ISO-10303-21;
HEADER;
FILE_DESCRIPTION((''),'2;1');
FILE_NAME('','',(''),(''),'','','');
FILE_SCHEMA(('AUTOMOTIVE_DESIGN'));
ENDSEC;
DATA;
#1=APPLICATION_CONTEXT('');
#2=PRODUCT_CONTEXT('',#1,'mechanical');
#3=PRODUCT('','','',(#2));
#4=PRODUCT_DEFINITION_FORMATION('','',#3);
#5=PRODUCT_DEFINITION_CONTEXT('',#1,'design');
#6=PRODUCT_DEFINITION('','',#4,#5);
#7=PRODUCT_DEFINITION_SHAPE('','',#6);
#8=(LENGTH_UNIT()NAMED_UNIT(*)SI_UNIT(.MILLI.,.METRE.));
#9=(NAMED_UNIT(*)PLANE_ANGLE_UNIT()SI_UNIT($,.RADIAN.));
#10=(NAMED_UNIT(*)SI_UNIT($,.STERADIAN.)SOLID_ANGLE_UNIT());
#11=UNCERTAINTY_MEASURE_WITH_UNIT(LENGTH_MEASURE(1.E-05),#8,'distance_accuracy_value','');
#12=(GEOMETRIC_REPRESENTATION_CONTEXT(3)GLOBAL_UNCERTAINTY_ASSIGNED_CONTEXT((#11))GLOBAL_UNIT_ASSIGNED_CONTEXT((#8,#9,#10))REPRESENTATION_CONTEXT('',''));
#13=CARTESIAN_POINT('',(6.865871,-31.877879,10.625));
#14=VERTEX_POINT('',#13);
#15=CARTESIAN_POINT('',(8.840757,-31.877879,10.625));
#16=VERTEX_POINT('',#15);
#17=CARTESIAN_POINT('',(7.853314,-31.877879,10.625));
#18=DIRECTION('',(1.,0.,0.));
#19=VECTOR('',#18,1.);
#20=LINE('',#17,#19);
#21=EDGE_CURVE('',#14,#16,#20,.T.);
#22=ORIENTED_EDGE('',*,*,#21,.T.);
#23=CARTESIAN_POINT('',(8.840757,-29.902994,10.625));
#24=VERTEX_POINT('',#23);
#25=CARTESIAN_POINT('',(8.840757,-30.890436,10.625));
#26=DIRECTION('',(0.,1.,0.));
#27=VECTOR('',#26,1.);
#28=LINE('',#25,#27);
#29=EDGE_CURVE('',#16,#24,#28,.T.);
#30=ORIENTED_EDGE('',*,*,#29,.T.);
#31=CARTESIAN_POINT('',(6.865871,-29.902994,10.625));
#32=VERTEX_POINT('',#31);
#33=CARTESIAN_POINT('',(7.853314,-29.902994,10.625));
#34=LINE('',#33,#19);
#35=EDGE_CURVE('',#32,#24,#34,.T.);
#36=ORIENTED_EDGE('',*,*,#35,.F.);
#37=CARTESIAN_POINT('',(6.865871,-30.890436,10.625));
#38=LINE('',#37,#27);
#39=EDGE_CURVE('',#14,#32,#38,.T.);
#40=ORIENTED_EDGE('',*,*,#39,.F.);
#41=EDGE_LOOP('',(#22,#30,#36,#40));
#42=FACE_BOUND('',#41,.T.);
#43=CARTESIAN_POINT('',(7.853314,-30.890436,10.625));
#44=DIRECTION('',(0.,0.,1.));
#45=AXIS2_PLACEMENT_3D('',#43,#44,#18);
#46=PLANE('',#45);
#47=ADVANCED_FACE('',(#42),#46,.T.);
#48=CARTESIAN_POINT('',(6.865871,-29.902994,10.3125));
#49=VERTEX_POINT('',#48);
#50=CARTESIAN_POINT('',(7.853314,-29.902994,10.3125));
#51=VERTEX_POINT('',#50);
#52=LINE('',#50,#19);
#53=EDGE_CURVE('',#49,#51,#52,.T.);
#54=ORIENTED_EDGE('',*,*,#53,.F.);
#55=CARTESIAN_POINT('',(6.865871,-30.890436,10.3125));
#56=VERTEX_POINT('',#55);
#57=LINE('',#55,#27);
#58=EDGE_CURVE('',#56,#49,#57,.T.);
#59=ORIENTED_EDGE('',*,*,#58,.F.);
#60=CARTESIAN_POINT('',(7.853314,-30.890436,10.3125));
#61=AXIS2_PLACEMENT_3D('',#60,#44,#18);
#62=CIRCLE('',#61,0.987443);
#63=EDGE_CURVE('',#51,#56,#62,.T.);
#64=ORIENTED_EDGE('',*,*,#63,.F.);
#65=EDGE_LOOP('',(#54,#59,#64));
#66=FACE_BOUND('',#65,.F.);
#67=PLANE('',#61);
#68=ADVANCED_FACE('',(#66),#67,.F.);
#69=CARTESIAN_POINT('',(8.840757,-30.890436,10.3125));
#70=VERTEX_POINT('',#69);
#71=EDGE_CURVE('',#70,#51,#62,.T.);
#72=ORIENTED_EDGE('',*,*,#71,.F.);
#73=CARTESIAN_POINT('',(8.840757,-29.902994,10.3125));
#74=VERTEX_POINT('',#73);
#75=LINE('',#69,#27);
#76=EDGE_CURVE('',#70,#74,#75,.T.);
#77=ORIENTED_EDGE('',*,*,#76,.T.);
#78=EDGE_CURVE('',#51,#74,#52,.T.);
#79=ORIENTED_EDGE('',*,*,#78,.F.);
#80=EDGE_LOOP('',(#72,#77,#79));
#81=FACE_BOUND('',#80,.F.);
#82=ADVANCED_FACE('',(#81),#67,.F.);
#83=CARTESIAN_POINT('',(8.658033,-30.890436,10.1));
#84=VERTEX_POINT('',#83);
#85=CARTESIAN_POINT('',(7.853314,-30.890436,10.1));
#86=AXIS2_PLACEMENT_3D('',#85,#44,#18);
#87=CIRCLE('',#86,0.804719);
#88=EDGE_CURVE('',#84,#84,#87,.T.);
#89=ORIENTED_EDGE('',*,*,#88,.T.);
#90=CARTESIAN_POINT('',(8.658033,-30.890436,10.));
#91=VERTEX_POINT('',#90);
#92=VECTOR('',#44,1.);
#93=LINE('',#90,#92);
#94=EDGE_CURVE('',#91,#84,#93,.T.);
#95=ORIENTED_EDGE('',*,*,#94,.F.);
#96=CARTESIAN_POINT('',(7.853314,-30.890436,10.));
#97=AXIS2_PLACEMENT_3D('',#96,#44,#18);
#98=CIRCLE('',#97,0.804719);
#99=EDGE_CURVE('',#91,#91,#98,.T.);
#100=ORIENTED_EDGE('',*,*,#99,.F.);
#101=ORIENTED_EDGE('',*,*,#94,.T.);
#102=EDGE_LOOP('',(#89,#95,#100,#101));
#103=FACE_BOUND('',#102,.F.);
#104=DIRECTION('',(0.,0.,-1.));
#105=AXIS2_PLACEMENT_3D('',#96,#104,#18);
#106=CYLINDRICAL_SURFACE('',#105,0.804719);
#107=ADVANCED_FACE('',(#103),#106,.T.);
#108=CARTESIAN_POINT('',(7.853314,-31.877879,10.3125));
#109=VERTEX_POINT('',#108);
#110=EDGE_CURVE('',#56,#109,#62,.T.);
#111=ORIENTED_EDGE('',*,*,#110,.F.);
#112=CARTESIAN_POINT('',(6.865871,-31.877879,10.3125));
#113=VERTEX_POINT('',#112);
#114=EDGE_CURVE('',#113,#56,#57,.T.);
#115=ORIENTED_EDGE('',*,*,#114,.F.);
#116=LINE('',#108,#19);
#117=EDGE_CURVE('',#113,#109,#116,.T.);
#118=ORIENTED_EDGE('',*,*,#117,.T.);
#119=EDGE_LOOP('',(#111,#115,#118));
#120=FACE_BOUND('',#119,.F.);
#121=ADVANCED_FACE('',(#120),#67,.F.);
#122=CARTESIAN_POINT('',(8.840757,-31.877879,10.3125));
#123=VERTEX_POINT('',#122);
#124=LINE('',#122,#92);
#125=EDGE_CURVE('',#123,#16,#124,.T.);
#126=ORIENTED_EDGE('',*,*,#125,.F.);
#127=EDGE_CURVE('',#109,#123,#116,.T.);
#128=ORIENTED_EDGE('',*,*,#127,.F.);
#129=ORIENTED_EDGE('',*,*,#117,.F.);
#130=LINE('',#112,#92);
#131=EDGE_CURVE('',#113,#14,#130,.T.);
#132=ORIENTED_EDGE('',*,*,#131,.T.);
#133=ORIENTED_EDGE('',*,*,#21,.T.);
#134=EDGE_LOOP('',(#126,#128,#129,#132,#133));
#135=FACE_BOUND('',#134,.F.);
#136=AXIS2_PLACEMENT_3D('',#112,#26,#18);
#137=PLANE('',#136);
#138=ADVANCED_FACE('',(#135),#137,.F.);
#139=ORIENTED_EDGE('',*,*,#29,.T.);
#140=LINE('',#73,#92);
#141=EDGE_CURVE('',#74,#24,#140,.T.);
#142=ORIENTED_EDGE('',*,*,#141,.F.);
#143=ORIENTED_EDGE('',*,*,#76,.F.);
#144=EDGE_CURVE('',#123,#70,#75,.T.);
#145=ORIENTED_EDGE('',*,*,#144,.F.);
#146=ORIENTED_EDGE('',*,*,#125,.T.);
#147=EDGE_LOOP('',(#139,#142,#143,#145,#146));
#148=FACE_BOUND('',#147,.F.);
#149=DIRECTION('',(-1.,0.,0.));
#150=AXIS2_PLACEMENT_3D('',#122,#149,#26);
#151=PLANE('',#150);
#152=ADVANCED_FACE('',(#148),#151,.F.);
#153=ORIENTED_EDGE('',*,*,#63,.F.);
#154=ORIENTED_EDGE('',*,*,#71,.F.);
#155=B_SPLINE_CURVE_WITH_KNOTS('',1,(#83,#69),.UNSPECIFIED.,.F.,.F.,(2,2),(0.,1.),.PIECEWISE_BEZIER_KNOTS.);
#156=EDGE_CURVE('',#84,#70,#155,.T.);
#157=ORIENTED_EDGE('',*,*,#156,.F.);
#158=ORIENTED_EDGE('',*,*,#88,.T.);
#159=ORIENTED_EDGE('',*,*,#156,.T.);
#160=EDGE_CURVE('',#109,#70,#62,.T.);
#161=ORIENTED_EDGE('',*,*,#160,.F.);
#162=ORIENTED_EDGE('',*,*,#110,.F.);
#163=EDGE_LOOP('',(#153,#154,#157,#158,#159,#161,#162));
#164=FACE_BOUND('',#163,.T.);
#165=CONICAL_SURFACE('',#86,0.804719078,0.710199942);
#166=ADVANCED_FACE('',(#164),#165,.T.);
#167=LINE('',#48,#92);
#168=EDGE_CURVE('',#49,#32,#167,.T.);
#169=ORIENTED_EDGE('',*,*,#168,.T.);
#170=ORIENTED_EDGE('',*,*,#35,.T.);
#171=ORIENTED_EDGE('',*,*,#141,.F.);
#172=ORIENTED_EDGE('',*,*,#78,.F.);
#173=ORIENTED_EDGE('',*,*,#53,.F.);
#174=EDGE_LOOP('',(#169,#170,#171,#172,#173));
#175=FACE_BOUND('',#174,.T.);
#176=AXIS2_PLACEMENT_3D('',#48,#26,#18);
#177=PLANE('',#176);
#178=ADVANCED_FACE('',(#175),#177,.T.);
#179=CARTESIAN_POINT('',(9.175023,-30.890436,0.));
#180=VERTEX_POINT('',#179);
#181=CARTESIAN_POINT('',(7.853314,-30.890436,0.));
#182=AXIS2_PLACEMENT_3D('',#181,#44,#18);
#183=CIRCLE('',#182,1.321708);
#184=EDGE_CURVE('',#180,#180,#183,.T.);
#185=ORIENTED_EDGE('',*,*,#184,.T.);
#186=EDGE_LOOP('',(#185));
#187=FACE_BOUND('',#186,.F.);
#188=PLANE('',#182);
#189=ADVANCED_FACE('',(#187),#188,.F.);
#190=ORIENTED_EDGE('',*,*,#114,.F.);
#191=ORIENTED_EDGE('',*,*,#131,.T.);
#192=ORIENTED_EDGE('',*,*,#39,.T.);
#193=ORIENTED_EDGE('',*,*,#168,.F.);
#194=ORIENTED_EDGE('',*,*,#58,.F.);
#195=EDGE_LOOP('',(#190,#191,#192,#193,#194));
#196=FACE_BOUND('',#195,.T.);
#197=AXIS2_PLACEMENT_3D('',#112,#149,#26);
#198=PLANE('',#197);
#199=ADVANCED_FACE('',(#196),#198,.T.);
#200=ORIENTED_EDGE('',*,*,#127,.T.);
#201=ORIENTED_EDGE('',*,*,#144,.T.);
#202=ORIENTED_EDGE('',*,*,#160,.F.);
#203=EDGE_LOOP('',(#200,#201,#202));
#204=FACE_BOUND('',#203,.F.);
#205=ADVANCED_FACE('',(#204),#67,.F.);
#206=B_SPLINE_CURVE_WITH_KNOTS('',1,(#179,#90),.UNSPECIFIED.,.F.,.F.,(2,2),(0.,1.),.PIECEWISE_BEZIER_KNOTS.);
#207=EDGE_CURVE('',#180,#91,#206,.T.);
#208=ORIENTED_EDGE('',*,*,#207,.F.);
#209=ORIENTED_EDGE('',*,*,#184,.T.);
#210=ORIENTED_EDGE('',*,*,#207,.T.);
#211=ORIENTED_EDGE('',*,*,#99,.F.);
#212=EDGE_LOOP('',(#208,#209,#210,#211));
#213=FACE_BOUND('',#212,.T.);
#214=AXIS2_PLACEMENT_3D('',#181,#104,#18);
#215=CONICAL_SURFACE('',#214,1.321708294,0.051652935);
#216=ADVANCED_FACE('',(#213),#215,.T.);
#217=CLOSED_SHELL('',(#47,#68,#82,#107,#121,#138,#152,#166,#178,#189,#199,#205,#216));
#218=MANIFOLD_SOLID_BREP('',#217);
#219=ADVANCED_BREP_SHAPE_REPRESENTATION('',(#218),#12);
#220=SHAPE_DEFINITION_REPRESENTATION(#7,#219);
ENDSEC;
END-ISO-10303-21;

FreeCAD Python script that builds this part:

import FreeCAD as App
import Part
import Sketcher
from FreeCAD import Vector

doc = App.newDocument("Part")
body = doc.addObject("PartDesign::Body", "Body")

sketch1 = doc.addObject("Sketcher::SketchObject", "Sketch")
body.addObject(sketch1)
sketch1.AttachmentSupport = (doc.XY_Plane, [""])
sketch1.MapMode = "FlatFace"
sketch1.addGeometry(Part.Circle(Vector(7.853314, -30.890436, 0), Vector(0, 0, 1), 1.321708), False)
sketch1.addConstraint(Sketcher.Constraint("Diameter", 0, 2.643417))
sketch1.addConstraint(Sketcher.Constraint("DistanceX", -1, 1, 0, 3, 7.853314))
sketch1.addConstraint(Sketcher.Constraint("DistanceY", 0, 3, -1, 1, 30.890436))

sketch2 = doc.addObject("Sketcher::SketchObject", "Sketch001")
body.addObject(sketch2)
sketch2.AttachmentSupport = (doc.XY_Plane, [""])
sketch2.MapMode = "FlatFace"
sketch2.AttachmentOffset = App.Placement(Vector(0, 0, 10), App.Rotation())
sketch2.addGeometry(Part.Circle(Vector(7.853314, -30.890436, 0), Vector(0, 0, 1), 0.804719), False)
sketch2.addConstraint(Sketcher.Constraint("Diameter", 0, 1.609438))
sketch2.addConstraint(Sketcher.Constraint("DistanceX", -1, 1, 0, 3, 7.853314))
sketch2.addConstraint(Sketcher.Constraint("DistanceY", 0, 3, -1, 1, 30.890436))

additiveloft = doc.addObject("PartDesign::AdditiveLoft", "AdditiveLoft")
body.addObject(additiveloft)
additiveloft.Profile = sketch1
additiveloft.Sections = [sketch2]

sketch3 = doc.addObject("Sketcher::SketchObject", "Sketch002")
body.addObject(sketch3)
sketch3.AttachmentSupport = (doc.XY_Plane, [""])
sketch3.MapMode = "FlatFace"
sketch3.AttachmentOffset = App.Placement(Vector(0, 0, 10), App.Rotation())
sketch3.addGeometry(Part.Circle(Vector(7.853314, -30.890436, 0), Vector(0, 0, 1), 0.804719), False)
sketch3.addConstraint(Sketcher.Constraint("Diameter", 0, 1.609438))
sketch3.addConstraint(Sketcher.Constraint("DistanceX", -1, 1, 0, 3, 7.853314))
sketch3.addConstraint(Sketcher.Constraint("DistanceY", 0, 3, -1, 1, 30.890436))
pad1 = doc.addObject("PartDesign::Pad", "Pad")
body.addObject(pad1)
pad1.Profile = sketch3
pad1.Length = 0.1

sketch4 = doc.addObject("Sketcher::SketchObject", "Sketch003")
body.addObject(sketch4)
sketch4.AttachmentSupport = (doc.XY_Plane, [""])
sketch4.MapMode = "FlatFace"
sketch4.AttachmentOffset = App.Placement(Vector(0, 0, 10.1), App.Rotation())
sketch4.addGeometry(Part.Circle(Vector(7.853314, -30.890436, 0), Vector(0, 0, 1), 0.804719), False)
sketch4.addConstraint(Sketcher.Constraint("Diameter", 0, 1.609438))
sketch4.addConstraint(Sketcher.Constraint("DistanceX", -1, 1, 0, 3, 7.853314))
sketch4.addConstraint(Sketcher.Constraint("DistanceY", 0, 3, -1, 1, 30.890436))

sketch5 = doc.addObject("Sketcher::SketchObject", "Sketch004")
body.addObject(sketch5)
sketch5.AttachmentSupport = (doc.XY_Plane, [""])
sketch5.MapMode = "FlatFace"
sketch5.AttachmentOffset = App.Placement(Vector(0, 0, 10.3125), App.Rotation())
sketch5.addGeometry(Part.Circle(Vector(7.853314, -30.890436, 0), Vector(0, 0, 1), 0.987443), False)
sketch5.addConstraint(Sketcher.Constraint("Diameter", 0, 1.974886))
sketch5.addConstraint(Sketcher.Constraint("DistanceX", -1, 1, 0, 3, 7.853314))
sketch5.addConstraint(Sketcher.Constraint("DistanceY", 0, 3, -1, 1, 30.890436))

additiveloft2 = doc.addObject("PartDesign::AdditiveLoft", "AdditiveLoft001")
body.addObject(additiveloft2)
additiveloft2.Profile = sketch4
additiveloft2.Sections = [sketch5]

sketch6 = doc.addObject("Sketcher::SketchObject", "Sketch005")
body.addObject(sketch6)
sketch6.AttachmentSupport = (doc.XY_Plane, [""])
sketch6.MapMode = "FlatFace"
sketch6.AttachmentOffset = App.Placement(Vector(0, 0, 10.3125), App.Rotation())
sketch6.addGeometry(Part.LineSegment(Vector(6.865871, -29.902994, 0), Vector(6.865871, -31.877879, 0)), False)
sketch6.addGeometry(Part.LineSegment(Vector(6.865871, -31.877879, 0), Vector(8.840757, -31.877879, 0)), False)
sketch6.addGeometry(Part.LineSegment(Vector(8.840757, -31.877879, 0), Vector(8.840757, -29.902994, 0)), False)
sketch6.addGeometry(Part.LineSegment(Vector(8.840757, -29.902994, 0), Vector(6.865871, -29.902994, 0)), False)
sketch6.addConstraint(Sketcher.Constraint("Coincident", 0, 2, 1, 1))
sketch6.addConstraint(Sketcher.Constraint("Coincident", 1, 2, 2, 1))
sketch6.addConstraint(Sketcher.Constraint("Coincident", 2, 2, 3, 1))
sketch6.addConstraint(Sketcher.Constraint("Coincident", 3, 2, 0, 1))
sketch6.addConstraint(Sketcher.Constraint("Vertical", 0))
sketch6.addConstraint(Sketcher.Constraint("Horizontal", 1))
sketch6.addConstraint(Sketcher.Constraint("Vertical", 2))
sketch6.addConstraint(Sketcher.Constraint("Horizontal", 3))
sketch6.addConstraint(Sketcher.Constraint("Equal", 3, 0))
sketch6.addConstraint(Sketcher.Constraint("DistanceX", 1, 1, 1, 2, 1.974886))
sketch6.addConstraint(Sketcher.Constraint("DistanceX", -1, 1, 0, 2, 6.865871))
sketch6.addConstraint(Sketcher.Constraint("DistanceY", 0, 2, -1, 1, 31.877879))
pad2 = doc.addObject("PartDesign::Pad", "Pad001")
body.addObject(pad2)
pad2.Profile = sketch6
pad2.Length = 0.3125

doc.recompute()
